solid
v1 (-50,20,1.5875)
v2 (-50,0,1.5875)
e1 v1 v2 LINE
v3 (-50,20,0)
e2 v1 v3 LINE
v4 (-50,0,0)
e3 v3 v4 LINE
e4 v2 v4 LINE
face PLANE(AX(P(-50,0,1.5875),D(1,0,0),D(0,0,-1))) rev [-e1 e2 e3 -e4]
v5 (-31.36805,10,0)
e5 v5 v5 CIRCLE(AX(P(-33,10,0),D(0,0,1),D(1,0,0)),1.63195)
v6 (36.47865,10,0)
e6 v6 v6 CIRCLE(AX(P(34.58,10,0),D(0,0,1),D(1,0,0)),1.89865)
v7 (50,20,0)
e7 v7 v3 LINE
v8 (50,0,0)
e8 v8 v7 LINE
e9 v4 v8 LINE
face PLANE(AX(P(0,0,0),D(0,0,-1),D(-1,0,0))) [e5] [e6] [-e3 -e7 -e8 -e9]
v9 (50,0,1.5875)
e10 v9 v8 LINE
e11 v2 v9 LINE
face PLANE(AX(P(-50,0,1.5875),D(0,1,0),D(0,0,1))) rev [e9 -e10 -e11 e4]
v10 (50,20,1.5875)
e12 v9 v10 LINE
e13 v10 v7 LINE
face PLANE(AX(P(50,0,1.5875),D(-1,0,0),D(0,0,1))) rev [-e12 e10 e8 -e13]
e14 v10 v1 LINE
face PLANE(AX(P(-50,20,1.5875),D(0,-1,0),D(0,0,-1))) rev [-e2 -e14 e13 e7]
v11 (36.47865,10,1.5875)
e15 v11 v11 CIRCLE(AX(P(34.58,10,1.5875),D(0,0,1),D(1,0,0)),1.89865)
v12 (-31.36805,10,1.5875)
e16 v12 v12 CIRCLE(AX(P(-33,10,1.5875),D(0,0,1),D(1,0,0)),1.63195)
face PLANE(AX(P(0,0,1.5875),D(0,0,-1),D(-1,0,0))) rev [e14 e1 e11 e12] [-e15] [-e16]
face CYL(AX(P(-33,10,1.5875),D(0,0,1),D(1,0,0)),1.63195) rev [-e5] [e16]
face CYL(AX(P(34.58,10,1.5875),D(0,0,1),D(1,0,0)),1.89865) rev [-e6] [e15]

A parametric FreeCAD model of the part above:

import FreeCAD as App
import Part
import Sketcher

V = App.Vector


def add_polygon(sketch, points):
    """Adds a closed chain of lines whose ends are joined by coincident constraints."""
    first, n = sketch.GeometryCount, len(points)
    for a, b in zip(points, points[1:] + points[:1]):
        sketch.addGeometry(Part.LineSegment(App.Vector(*a, 0), App.Vector(*b, 0)), False)
    for i in range(n):
        sketch.addConstraint(Sketcher.Constraint("Coincident", first + i, 2, first + (i + 1) % n, 1))

doc = App.newDocument("Part")
body = doc.addObject("PartDesign::Body", "Body")

sketch1 = body.newObject("Sketcher::SketchObject", "Sketch")
sketch1.AttachmentSupport = (doc.getObject("XY_Plane"), [""])
sketch1.MapMode = "FlatFace"
add_polygon(sketch1, [(-50, 20), (-50, 0), (50, 0), (50, 20)])
sketch1.addConstraint(Sketcher.Constraint("Vertical", 0))
sketch1.addConstraint(Sketcher.Constraint("Horizontal", 1))
sketch1.addConstraint(Sketcher.Constraint("Vertical", 2))
sketch1.addConstraint(Sketcher.Constraint("Horizontal", 3))
sketch1.addConstraint(Sketcher.Constraint("Symmetric", 0, 2, 1, 2, -1, 1))
sketch1.addConstraint(Sketcher.Constraint("DistanceX", 1, 1, 1, 2, 100.0))
sketch1.addConstraint(Sketcher.Constraint("DistanceY", 0, 2, 0, 1, 20.0))
pad1 = body.newObject("PartDesign::Pad", "Pad")
pad1.Profile = sketch1
pad1.Length = 1.5875

sketch2 = body.newObject("Sketcher::SketchObject", "Sketch001")
sketch2.AttachmentSupport = (doc.getObject("XY_Plane"), [""])
sketch2.MapMode = "FlatFace"
sketch2.AttachmentOffset = App.Placement(V(0, 0, 1.5875), App.Rotation())
sketch2.addGeometry(Part.Circle(V(-33, 10, 0), V(0, 0, 1), 1.63195), False)
sketch2.addConstraint(Sketcher.Constraint("DistanceX", 0, 3, -1, 1, 33.0))
sketch2.addConstraint(Sketcher.Constraint("DistanceY", -1, 1, 0, 3, 10.0))
sketch2.addConstraint(Sketcher.Constraint("Diameter", 0, 3.2639))
doc.recompute()
hole = body.newObject("PartDesign::Hole", "Hole")
hole.Profile = sketch2
hole.ThreadType = "None"
hole.Diameter = 3.2639
hole.DepthType = "ThroughAll"

sketch3 = body.newObject("Sketcher::SketchObject", "Sketch002")
sketch3.AttachmentSupport = (doc.getObject("XY_Plane"), [""])
sketch3.MapMode = "FlatFace"
sketch3.AttachmentOffset = App.Placement(V(0, 0, 1.5875), App.Rotation())
sketch3.addGeometry(Part.Circle(V(34.58, 10, 0), V(0, 0, 1), 1.89865), False)
sketch3.addConstraint(Sketcher.Constraint("DistanceY", -1, 1, 0, 3, 10.0))
sketch3.addConstraint(Sketcher.Constraint("Diameter", 0, 3.7973))
sketch3.addConstraint(Sketcher.Constraint("DistanceX", -1, 1, 0, 3, 34.58))
doc.recompute()
hole2 = body.newObject("PartDesign::Hole", "Hole001")
hole2.Profile = sketch3
hole2.ThreadType = "None"
hole2.Diameter = 3.7973
hole2.DepthType = "ThroughAll"

doc.recompute()
